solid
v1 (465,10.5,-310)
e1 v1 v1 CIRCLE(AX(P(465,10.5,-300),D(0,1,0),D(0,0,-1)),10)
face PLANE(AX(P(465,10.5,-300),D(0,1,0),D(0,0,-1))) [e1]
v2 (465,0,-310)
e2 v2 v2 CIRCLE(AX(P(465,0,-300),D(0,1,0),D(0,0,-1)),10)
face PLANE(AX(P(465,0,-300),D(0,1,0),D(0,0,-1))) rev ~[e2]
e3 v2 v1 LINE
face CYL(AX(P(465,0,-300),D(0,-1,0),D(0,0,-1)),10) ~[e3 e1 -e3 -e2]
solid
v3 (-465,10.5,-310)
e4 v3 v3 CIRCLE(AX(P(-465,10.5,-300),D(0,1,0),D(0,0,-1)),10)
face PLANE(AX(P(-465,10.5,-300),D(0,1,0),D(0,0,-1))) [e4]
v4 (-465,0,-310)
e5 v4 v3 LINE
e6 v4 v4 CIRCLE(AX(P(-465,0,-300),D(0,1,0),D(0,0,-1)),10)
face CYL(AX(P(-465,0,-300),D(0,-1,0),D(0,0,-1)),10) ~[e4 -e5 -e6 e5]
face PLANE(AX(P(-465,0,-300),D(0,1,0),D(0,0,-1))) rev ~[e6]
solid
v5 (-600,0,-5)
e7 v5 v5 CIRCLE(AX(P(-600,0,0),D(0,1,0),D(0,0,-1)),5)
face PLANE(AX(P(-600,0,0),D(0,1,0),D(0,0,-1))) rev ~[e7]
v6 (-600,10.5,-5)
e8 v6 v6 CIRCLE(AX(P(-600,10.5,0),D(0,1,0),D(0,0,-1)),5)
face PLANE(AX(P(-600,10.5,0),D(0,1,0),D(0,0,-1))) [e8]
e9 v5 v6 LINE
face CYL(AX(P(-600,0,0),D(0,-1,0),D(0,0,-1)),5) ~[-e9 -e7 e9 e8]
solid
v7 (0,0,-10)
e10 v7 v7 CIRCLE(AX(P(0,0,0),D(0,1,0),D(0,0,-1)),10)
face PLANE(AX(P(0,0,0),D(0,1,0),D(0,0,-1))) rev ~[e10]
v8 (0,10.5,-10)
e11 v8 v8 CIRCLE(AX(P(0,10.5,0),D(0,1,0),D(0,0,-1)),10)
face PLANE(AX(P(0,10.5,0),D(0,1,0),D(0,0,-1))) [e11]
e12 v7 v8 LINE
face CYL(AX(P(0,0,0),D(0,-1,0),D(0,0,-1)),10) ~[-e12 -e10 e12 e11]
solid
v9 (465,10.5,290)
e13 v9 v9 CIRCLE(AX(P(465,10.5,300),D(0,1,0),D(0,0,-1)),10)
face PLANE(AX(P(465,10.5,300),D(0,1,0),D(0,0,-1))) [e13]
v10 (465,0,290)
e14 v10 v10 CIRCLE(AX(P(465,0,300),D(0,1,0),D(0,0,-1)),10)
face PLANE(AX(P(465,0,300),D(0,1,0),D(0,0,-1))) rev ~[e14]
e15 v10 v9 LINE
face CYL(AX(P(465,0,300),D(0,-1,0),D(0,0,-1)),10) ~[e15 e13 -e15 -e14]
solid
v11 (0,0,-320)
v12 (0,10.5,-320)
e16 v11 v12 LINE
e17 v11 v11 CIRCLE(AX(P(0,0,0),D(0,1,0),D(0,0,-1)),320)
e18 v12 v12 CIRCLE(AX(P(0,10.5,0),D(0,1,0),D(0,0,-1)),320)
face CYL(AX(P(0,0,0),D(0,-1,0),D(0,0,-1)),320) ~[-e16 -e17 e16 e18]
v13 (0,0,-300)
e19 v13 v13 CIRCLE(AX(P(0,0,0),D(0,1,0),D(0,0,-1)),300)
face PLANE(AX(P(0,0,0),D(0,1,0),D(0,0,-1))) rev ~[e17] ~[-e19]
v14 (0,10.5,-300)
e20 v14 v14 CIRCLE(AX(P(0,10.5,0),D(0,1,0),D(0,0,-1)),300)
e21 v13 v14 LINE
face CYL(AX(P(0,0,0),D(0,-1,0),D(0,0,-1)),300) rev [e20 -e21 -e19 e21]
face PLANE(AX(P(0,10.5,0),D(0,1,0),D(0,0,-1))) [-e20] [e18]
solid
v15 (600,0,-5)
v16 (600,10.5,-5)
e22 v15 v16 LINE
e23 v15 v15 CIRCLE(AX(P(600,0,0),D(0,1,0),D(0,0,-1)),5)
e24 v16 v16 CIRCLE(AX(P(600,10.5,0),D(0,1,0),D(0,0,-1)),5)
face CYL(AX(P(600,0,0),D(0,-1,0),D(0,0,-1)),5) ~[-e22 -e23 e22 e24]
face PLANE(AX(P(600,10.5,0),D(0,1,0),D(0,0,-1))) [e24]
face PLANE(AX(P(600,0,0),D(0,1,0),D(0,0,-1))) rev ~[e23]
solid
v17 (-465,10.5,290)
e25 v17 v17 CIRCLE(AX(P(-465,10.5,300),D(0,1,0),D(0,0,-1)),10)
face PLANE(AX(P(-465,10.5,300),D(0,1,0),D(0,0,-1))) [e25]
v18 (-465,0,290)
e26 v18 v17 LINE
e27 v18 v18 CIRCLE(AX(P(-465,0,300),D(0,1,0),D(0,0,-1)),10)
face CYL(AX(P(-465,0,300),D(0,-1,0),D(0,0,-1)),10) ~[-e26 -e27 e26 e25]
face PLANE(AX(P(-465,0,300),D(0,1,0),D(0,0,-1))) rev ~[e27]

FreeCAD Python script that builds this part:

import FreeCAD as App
import Part
import Sketcher

V = App.Vector
Q = App.Units.Quantity

doc = App.newDocument("Part")
body = doc.addObject("PartDesign::Body", "Body")

# Sketch on XZ plane
sketch1 = body.newObject("Sketcher::SketchObject", "Sketch")
sketch1.AttachmentSupport = (doc.getObject("XZ_Plane"), [""])
sketch1.MapMode = "FlatFace"
sketch1.addGeometry(Part.Circle(V(465, -300, 0), V(0, 0, 1), 10), False)
sketch1.addConstraint(Sketcher.Constraint("Diameter", 0, Q("20 mm")))
sketch1.addConstraint(Sketcher.Constraint("DistanceX", -1, 1, 0, 3, Q("465 mm")))
sketch1.addConstraint(Sketcher.Constraint("DistanceY", 0, 3, -1, 1, Q("300 mm")))
pad1 = body.newObject("PartDesign::Pad", "Pad")
pad1.Profile = sketch1
pad1.Length = 10.5
pad1.Reversed = True
body2 = doc.addObject("PartDesign::Body", "Body001")

# Sketch on XZ plane
sketch2 = body2.newObject("Sketcher::SketchObject", "Sketch001")
sketch2.AttachmentSupport = (doc.getObject("XZ_Plane001"), [""])
sketch2.MapMode = "FlatFace"
sketch2.addGeometry(Part.Circle(V(465, 300, 0), V(0, 0, 1), 10), False)
sketch2.addConstraint(Sketcher.Constraint("Diameter", 0, Q("20 mm")))
sketch2.addConstraint(Sketcher.Constraint("DistanceX", -1, 1, 0, 3, Q("465 mm")))
sketch2.addConstraint(Sketcher.Constraint("DistanceY", -1, 1, 0, 3, Q("300 mm")))
pad2 = body2.newObject("PartDesign::Pad", "Pad001")
pad2.Profile = sketch2
pad2.Length = 10.5
pad2.Reversed = True
body3 = doc.addObject("PartDesign::Body", "Body002")

# Sketch on XZ plane
sketch3 = body3.newObject("Sketcher::SketchObject", "Sketch002")
sketch3.AttachmentSupport = (doc.getObject("XZ_Plane002"), [""])
sketch3.MapMode = "FlatFace"
sketch3.addGeometry(Part.Circle(V(-465, 300, 0), V(0, 0, 1), 10), False)
sketch3.addConstraint(Sketcher.Constraint("Diameter", 0, Q("20 mm")))
sketch3.addConstraint(Sketcher.Constraint("DistanceX", 0, 3, -1, 1, Q("465 mm")))
sketch3.addConstraint(Sketcher.Constraint("DistanceY", -1, 1, 0, 3, Q("300 mm")))
pad3 = body3.newObject("PartDesign::Pad", "Pad002")
pad3.Profile = sketch3
pad3.Length = 10.5
pad3.Reversed = True
body4 = doc.addObject("PartDesign::Body", "Body003")

# Sketch on XZ plane
sketch4 = body4.newObject("Sketcher::SketchObject", "Sketch003")
sketch4.AttachmentSupport = (doc.getObject("XZ_Plane003"), [""])
sketch4.MapMode = "FlatFace"
sketch4.addGeometry(Part.Circle(V(0, 0, 0), V(0, 0, 1), 10), False)
sketch4.addConstraint(Sketcher.Constraint("Coincident", 0, 3, -1, 1))
sketch4.addConstraint(Sketcher.Constraint("Diameter", 0, Q("20 mm")))
pad4 = body4.newObject("PartDesign::Pad", "Pad003")
pad4.Profile = sketch4
pad4.Length = 10.5
pad4.Reversed = True
body5 = doc.addObject("PartDesign::Body", "Body004")

# Sketch on XZ plane
sketch5 = body5.newObject("Sketcher::SketchObject", "Sketch004")
sketch5.AttachmentSupport = (doc.getObject("XZ_Plane004"), [""])
sketch5.MapMode = "FlatFace"
sketch5.addGeometry(Part.Circle(V(-465, -300, 0), V(0, 0, 1), 10), False)
sketch5.addConstraint(Sketcher.Constraint("Diameter", 0, Q("20 mm")))
sketch5.addConstraint(Sketcher.Constraint("DistanceX", 0, 3, -1, 1, Q("465 mm")))
sketch5.addConstraint(Sketcher.Constraint("DistanceY", 0, 3, -1, 1, Q("300 mm")))
pad5 = body5.newObject("PartDesign::Pad", "Pad004")
pad5.Profile = sketch5
pad5.Length = 10.5
pad5.Reversed = True
body6 = doc.addObject("PartDesign::Body", "Body005")

# Sketch on XZ plane
sketch6 = body6.newObject("Sketcher::SketchObject", "Sketch005")
sketch6.AttachmentSupport = (doc.getObject("XZ_Plane005"), [""])
sketch6.MapMode = "FlatFace"
sketch6.addGeometry(Part.Circle(V(600, 0, 0), V(0, 0, 1), 5), False)
sketch6.addConstraint(Sketcher.Constraint("PointOnObject", 0, 3, -1))
sketch6.addConstraint(Sketcher.Constraint("Diameter", 0, Q("10 mm")))
sketch6.addConstraint(Sketcher.Constraint("DistanceX", -1, 1, 0, 3, Q("600 mm")))
pad6 = body6.newObject("PartDesign::Pad", "Pad005")
pad6.Profile = sketch6
pad6.Length = 10.5
pad6.Reversed = True
body7 = doc.addObject("PartDesign::Body", "Body006")

# Sketch on XZ plane
sketch7 = body7.newObject("Sketcher::SketchObject", "Sketch006")
sketch7.AttachmentSupport = (doc.getObject("XZ_Plane006"), [""])
sketch7.MapMode = "FlatFace"
sketch7.addGeometry(Part.Circle(V(-600, 0, 0), V(0, 0, 1), 5), False)
sketch7.addConstraint(Sketcher.Constraint("PointOnObject", 0, 3, -1))
sketch7.addConstraint(Sketcher.Constraint("Diameter", 0, Q("10 mm")))
sketch7.addConstraint(Sketcher.Constraint("DistanceX", 0, 3, -1, 1, Q("600 mm")))
pad7 = body7.newObject("PartDesign::Pad", "Pad006")
pad7.Profile = sketch7
pad7.Length = 10.5
pad7.Reversed = True
body8 = doc.addObject("PartDesign::Body", "Body007")

# Sketch on XZ plane
sketch8 = body8.newObject("Sketcher::SketchObject", "Sketch007")
sketch8.AttachmentSupport = (doc.getObject("XZ_Plane007"), [""])
sketch8.MapMode = "FlatFace"
sketch8.addGeometry(Part.Circle(V(0, 0, 0), V(0, 0, 1), 320), False)
sketch8.addGeometry(Part.Circle(V(0, 0, 0), V(0, 0, 1), 300), False)
sketch8.addConstraint(Sketcher.Constraint("Coincident", 0, 3, -1, 1))
sketch8.addConstraint(Sketcher.Constraint("Coincident", 1, 3, -1, 1))
sketch8.addConstraint(Sketcher.Constraint("Diameter", 0, Q("640 mm")))
sketch8.addConstraint(Sketcher.Constraint("Diameter", 1, Q("600 mm")))
pad8 = body8.newObject("PartDesign::Pad", "Pad007")
pad8.Profile = sketch8
pad8.Length = 10.5
pad8.Reversed = True

doc.recompute()
